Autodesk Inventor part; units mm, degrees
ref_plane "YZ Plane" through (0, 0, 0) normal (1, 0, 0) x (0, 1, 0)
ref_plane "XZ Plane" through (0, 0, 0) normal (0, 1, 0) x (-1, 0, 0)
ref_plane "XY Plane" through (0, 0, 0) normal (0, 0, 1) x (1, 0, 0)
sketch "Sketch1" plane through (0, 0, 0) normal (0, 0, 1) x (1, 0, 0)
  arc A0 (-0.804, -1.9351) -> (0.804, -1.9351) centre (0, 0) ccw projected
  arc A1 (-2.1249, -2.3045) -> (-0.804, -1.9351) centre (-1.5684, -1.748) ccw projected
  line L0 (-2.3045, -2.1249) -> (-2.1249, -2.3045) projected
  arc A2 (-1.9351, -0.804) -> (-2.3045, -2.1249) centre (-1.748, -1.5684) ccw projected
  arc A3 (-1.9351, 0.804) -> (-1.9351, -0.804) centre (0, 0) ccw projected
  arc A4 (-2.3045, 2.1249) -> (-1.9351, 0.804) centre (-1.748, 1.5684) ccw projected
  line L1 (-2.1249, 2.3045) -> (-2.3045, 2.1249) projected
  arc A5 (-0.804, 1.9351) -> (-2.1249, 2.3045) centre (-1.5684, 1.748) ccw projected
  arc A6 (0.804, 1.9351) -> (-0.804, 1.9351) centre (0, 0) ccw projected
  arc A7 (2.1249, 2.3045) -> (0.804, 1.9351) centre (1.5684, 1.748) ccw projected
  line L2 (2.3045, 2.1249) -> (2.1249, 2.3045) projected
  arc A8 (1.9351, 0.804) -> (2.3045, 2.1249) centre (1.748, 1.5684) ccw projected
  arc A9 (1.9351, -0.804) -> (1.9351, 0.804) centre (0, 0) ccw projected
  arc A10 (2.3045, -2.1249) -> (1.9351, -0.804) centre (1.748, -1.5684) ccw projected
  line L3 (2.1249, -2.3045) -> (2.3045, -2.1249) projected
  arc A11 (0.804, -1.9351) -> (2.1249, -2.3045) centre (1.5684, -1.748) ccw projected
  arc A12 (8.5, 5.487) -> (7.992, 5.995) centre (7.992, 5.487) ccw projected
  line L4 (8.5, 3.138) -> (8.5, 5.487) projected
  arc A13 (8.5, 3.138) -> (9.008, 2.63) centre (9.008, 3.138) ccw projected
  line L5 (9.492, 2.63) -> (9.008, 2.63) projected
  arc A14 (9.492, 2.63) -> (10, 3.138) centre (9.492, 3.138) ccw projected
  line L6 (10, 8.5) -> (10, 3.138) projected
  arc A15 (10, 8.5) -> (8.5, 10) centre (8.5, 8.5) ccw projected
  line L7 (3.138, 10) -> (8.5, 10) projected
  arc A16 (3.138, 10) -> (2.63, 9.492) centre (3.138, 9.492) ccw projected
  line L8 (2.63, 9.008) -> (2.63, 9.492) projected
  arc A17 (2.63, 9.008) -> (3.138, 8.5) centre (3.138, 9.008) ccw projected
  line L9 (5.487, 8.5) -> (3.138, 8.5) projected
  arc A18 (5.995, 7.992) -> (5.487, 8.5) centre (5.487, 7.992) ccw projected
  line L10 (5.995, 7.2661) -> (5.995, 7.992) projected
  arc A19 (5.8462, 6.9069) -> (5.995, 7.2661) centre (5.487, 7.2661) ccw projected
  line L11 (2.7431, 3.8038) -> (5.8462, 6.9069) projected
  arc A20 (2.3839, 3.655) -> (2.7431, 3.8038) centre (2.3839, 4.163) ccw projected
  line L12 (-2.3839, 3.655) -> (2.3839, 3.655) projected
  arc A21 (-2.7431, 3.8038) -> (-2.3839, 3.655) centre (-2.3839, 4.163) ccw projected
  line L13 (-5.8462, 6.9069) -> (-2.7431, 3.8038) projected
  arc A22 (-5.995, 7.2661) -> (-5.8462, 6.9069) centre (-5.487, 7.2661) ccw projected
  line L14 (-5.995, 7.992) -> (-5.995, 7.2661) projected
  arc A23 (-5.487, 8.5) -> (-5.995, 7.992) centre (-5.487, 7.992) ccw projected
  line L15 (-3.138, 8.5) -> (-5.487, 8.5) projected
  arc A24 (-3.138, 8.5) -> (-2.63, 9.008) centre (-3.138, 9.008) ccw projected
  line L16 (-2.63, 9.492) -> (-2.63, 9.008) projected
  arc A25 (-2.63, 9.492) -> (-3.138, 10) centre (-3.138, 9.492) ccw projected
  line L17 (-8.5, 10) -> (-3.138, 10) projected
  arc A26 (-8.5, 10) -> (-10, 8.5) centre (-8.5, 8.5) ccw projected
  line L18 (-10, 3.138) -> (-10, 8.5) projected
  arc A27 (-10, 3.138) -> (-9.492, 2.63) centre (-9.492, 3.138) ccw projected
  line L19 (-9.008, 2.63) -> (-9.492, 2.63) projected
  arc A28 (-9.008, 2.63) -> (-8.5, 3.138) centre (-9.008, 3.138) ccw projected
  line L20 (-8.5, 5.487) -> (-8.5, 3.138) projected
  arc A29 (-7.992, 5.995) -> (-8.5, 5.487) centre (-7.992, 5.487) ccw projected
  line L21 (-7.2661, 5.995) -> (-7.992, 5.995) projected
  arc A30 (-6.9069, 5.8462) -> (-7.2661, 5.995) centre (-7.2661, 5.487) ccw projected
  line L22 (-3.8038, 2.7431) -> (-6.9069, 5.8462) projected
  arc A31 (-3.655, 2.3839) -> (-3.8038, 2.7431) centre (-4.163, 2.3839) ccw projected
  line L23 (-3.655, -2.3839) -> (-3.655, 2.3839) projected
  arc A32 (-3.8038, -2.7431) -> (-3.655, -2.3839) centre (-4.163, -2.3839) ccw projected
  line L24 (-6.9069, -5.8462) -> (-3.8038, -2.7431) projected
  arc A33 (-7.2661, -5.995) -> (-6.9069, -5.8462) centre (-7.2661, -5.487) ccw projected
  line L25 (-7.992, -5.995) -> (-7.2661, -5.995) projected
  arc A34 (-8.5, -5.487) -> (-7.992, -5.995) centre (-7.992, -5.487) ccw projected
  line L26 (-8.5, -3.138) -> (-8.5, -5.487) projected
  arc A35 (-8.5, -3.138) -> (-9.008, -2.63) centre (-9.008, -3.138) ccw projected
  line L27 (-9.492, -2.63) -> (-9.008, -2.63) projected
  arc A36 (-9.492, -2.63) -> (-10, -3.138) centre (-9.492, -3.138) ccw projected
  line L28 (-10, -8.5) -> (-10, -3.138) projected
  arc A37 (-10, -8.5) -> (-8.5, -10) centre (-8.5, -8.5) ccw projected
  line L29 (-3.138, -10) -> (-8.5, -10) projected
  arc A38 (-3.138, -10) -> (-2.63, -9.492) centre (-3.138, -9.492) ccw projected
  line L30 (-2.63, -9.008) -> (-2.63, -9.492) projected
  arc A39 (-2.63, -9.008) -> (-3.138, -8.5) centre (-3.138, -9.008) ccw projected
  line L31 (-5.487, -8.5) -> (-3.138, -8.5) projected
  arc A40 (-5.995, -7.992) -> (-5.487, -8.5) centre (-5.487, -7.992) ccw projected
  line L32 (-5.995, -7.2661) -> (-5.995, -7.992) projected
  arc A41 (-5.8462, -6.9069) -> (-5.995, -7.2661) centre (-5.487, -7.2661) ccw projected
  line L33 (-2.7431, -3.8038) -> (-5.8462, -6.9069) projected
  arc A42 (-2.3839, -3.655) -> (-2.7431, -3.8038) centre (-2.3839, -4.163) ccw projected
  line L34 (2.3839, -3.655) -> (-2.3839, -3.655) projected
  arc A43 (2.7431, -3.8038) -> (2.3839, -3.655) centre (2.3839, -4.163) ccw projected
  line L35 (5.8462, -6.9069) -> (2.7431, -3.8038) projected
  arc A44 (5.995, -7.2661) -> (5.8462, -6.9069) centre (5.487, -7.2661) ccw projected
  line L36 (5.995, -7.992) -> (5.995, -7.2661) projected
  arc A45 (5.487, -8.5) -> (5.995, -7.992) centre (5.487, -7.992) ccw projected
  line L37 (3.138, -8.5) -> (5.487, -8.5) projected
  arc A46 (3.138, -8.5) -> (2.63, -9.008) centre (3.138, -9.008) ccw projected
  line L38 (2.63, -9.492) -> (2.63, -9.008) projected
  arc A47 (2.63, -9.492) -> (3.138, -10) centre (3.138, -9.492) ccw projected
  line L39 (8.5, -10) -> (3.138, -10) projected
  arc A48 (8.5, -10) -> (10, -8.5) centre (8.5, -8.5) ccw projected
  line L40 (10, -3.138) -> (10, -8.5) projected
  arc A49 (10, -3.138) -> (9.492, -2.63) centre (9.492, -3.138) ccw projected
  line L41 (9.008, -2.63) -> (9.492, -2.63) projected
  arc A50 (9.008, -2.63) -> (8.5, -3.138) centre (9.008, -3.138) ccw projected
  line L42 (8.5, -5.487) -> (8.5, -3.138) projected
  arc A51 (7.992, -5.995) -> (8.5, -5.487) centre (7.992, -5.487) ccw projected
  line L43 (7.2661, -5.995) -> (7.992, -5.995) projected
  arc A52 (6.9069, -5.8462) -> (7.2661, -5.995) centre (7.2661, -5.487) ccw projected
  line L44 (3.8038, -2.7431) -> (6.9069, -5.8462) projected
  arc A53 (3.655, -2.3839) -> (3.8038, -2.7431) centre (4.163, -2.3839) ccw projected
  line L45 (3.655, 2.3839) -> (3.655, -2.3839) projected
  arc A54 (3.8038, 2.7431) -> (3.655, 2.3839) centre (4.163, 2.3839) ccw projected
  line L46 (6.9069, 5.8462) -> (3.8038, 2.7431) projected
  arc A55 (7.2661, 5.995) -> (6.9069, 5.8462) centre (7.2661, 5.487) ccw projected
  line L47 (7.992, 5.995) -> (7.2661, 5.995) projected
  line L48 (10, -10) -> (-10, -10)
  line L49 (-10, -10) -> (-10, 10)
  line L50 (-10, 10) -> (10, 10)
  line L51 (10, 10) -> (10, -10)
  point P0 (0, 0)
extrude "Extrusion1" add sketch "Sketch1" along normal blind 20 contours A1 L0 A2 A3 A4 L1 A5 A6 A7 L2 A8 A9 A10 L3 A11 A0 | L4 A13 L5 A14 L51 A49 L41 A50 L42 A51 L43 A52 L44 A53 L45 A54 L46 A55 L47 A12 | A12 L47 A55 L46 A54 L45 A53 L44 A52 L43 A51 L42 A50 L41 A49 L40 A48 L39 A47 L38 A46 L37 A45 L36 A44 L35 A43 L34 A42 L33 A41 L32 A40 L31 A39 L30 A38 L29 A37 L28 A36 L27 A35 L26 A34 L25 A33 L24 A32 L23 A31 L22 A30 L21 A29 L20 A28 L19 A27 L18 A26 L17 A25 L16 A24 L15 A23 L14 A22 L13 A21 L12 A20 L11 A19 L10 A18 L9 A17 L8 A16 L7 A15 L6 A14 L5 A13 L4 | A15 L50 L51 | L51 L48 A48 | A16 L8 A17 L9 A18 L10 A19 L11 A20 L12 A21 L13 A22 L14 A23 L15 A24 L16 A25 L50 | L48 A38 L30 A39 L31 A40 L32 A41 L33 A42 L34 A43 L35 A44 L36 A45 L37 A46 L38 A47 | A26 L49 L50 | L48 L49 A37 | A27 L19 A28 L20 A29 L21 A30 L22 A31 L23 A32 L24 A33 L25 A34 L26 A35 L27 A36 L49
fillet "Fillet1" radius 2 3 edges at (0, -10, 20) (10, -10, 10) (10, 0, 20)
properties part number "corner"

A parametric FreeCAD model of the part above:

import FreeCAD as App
import Part
import Sketcher
from FreeCAD import Vector
Q = App.Units.Quantity


def edges_at(feature, points):
    """Names of the edges that pass closest to the given points."""
    edges = feature.Shape.Edges
    near = lambda p: min(range(len(edges)), key=lambda i: edges[i].distToShape(Part.Vertex(*p))[0])
    return sorted({f"Edge{near(p) + 1}" for p in points})

doc = App.newDocument("Part")
body = doc.addObject("PartDesign::Body", "Body")

# Sketch on XY plane
sketch1 = doc.addObject("Sketcher::SketchObject", "Sketch")
body.addObject(sketch1)
sketch1.AttachmentSupport = (doc.XY_Plane, [""])
sketch1.MapMode = "FlatFace"
sketch1.addGeometry([
    Part.LineSegment(Vector(10, 10, 0), Vector(-10, 10, 0)),
    Part.LineSegment(Vector(-10, 10, 0), Vector(-10, -10, 0)),
    Part.LineSegment(Vector(-10, -10, 0), Vector(10, -10, 0)),
    Part.LineSegment(Vector(10, -10, 0), Vector(10, 10, 0)),
], False)
sketch1.addConstraint([
    Sketcher.Constraint("Coincident", 0, 2, 1, 1),
    Sketcher.Constraint("Coincident", 1, 2, 2, 1),
    Sketcher.Constraint("Coincident", 2, 2, 3, 1),
    Sketcher.Constraint("Coincident", 3, 2, 0, 1),
    Sketcher.Constraint("Horizontal", 0),
    Sketcher.Constraint("Vertical", 1),
    Sketcher.Constraint("Horizontal", 2),
    Sketcher.Constraint("Vertical", 3),
    Sketcher.Constraint("Symmetric", 0, 2, 2, 2, -1, 1),
    Sketcher.Constraint("Equal", 2, 1),
    Sketcher.Constraint("DistanceX", 0, 2, 0, 1, Q("20 mm")),
])
pad1 = doc.addObject("PartDesign::Pad", "Pad")
body.addObject(pad1)
pad1.Profile = sketch1
pad1.Length = 20
doc.recompute()

fillet = doc.addObject("PartDesign::Fillet", "Fillet")
body.addObject(fillet)
fillet.Base = (pad1, edges_at(pad1, [(0, -10, 20), (10, -10, 10), (10, 0, 20)]))
fillet.Radius = 2

doc.recompute()
